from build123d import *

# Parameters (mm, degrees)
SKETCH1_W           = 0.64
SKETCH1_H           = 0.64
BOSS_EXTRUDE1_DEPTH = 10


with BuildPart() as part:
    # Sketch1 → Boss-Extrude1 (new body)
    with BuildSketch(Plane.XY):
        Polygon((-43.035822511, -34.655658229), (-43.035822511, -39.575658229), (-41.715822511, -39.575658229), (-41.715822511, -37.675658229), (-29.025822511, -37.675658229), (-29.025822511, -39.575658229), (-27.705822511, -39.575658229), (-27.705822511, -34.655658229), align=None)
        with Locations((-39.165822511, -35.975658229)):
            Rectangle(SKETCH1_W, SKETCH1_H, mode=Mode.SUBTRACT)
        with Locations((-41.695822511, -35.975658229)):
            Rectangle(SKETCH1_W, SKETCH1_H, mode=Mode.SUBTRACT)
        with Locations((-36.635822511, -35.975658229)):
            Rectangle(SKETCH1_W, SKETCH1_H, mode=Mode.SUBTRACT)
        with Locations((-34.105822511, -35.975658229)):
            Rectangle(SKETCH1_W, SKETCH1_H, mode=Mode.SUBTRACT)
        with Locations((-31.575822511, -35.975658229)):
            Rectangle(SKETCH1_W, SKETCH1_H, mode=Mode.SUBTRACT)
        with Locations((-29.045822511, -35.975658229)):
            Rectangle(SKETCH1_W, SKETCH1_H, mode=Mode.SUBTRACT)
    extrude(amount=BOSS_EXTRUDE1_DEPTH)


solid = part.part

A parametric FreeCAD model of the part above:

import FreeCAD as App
import Part
import Sketcher
from FreeCAD import Vector
Q = App.Units.Quantity

doc = App.newDocument("Part")
body = doc.addObject("PartDesign::Body", "Body")

# Sketch on XY plane
sketch1 = body.newObject("Sketcher::SketchObject", "Sketch")
sketch1.AttachmentSupport = (doc.getObject("XY_Plane"), [""])
sketch1.MapMode = "FlatFace"
sketch1.addGeometry(Part.LineSegment(Vector(-43.035823, -34.655658, 0), Vector(-43.035823, -39.575658, 0)), False)
sketch1.addGeometry(Part.LineSegment(Vector(-43.035823, -39.575658, 0), Vector(-41.715823, -39.575658, 0)), False)
sketch1.addGeometry(Part.LineSegment(Vector(-41.715823, -39.575658, 0), Vector(-41.715823, -37.675658, 0)), False)
sketch1.addGeometry(Part.LineSegment(Vector(-41.715823, -37.675658, 0), Vector(-29.025823, -37.675658, 0)), False)
sketch1.addGeometry(Part.LineSegment(Vector(-29.025823, -37.675658, 0), Vector(-29.025823, -39.575658, 0)), False)
sketch1.addGeometry(Part.LineSegment(Vector(-29.025823, -39.575658, 0), Vector(-27.705823, -39.575658, 0)), False)
sketch1.addGeometry(Part.LineSegment(Vector(-27.705823, -39.575658, 0), Vector(-27.705823, -34.655658, 0)), False)
sketch1.addGeometry(Part.LineSegment(Vector(-27.705823, -34.655658, 0), Vector(-43.035823, -34.655658, 0)), False)
sketch1.addGeometry(Part.LineSegment(Vector(-41.375823, -36.295658, 0), Vector(-42.015823, -36.295658, 0)), False)
sketch1.addGeometry(Part.LineSegment(Vector(-42.015823, -36.295658, 0), Vector(-42.015823, -35.655658, 0)), False)
sketch1.addGeometry(Part.LineSegment(Vector(-42.015823, -35.655658, 0), Vector(-41.375823, -35.655658, 0)), False)
sketch1.addGeometry(Part.LineSegment(Vector(-41.375823, -35.655658, 0), Vector(-41.375823, -36.295658, 0)), False)
sketch1.addGeometry(Part.LineSegment(Vector(-38.845823, -36.295658, 0), Vector(-39.485823, -36.295658, 0)), False)
sketch1.addGeometry(Part.LineSegment(Vector(-39.485823, -36.295658, 0), Vector(-39.485823, -35.655658, 0)), False)
sketch1.addGeometry(Part.LineSegment(Vector(-39.485823, -35.655658, 0), Vector(-38.845823, -35.655658, 0)), False)
sketch1.addGeometry(Part.LineSegment(Vector(-38.845823, -35.655658, 0), Vector(-38.845823, -36.295658, 0)), False)
sketch1.addGeometry(Part.LineSegment(Vector(-36.315823, -36.295658, 0), Vector(-36.955823, -36.295658, 0)), False)
sketch1.addGeometry(Part.LineSegment(Vector(-36.955823, -36.295658, 0), Vector(-36.955823, -35.655658, 0)), False)
sketch1.addGeometry(Part.LineSegment(Vector(-36.955823, -35.655658, 0), Vector(-36.315823, -35.655658, 0)), False)
sketch1.addGeometry(Part.LineSegment(Vector(-36.315823, -35.655658, 0), Vector(-36.315823, -36.295658, 0)), False)
sketch1.addGeometry(Part.LineSegment(Vector(-33.785823, -36.295658, 0), Vector(-34.425823, -36.295658, 0)), False)
sketch1.addGeometry(Part.LineSegment(Vector(-34.425823, -36.295658, 0), Vector(-34.425823, -35.655658, 0)), False)
sketch1.addGeometry(Part.LineSegment(Vector(-34.425823, -35.655658, 0), Vector(-33.785823, -35.655658, 0)), False)
sketch1.addGeometry(Part.LineSegment(Vector(-33.785823, -35.655658, 0), Vector(-33.785823, -36.295658, 0)), False)
sketch1.addGeometry(Part.LineSegment(Vector(-31.255823, -36.295658, 0), Vector(-31.895823, -36.295658, 0)), False)
sketch1.addGeometry(Part.LineSegment(Vector(-31.895823, -36.295658, 0), Vector(-31.895823, -35.655658, 0)), False)
sketch1.addGeometry(Part.LineSegment(Vector(-31.895823, -35.655658, 0), Vector(-31.255823, -35.655658, 0)), False)
sketch1.addGeometry(Part.LineSegment(Vector(-31.255823, -35.655658, 0), Vector(-31.255823, -36.295658, 0)), False)
sketch1.addGeometry(Part.LineSegment(Vector(-28.725823, -36.295658, 0), Vector(-29.365823, -36.295658, 0)), False)
sketch1.addGeometry(Part.LineSegment(Vector(-29.365823, -36.295658, 0), Vector(-29.365823, -35.655658, 0)), False)
sketch1.addGeometry(Part.LineSegment(Vector(-29.365823, -35.655658, 0), Vector(-28.725823, -35.655658, 0)), False)
sketch1.addGeometry(Part.LineSegment(Vector(-28.725823, -35.655658, 0), Vector(-28.725823, -36.295658, 0)), False)
sketch1.addConstraint(Sketcher.Constraint("Coincident", 0, 2, 1, 1))
sketch1.addConstraint(Sketcher.Constraint("Coincident", 1, 2, 2, 1))
sketch1.addConstraint(Sketcher.Constraint("Coincident", 2, 2, 3, 1))
sketch1.addConstraint(Sketcher.Constraint("Coincident", 3, 2, 4, 1))
sketch1.addConstraint(Sketcher.Constraint("Coincident", 4, 2, 5, 1))
sketch1.addConstraint(Sketcher.Constraint("Coincident", 5, 2, 6, 1))
sketch1.addConstraint(Sketcher.Constraint("Coincident", 6, 2, 7, 1))
sketch1.addConstraint(Sketcher.Constraint("Coincident", 7, 2, 0, 1))
sketch1.addConstraint(Sketcher.Constraint("Coincident", 8, 2, 9, 1))
sketch1.addConstraint(Sketcher.Constraint("Coincident", 9, 2, 10, 1))
sketch1.addConstraint(Sketcher.Constraint("Coincident", 10, 2, 11, 1))
sketch1.addConstraint(Sketcher.Constraint("Coincident", 11, 2, 8, 1))
sketch1.addConstraint(Sketcher.Constraint("Coincident", 12, 2, 13, 1))
sketch1.addConstraint(Sketcher.Constraint("Coincident", 13, 2, 14, 1))
sketch1.addConstraint(Sketcher.Constraint("Coincident", 14, 2, 15, 1))
sketch1.addConstraint(Sketcher.Constraint("Coincident", 15, 2, 12, 1))
sketch1.addConstraint(Sketcher.Constraint("Coincident", 16, 2, 17, 1))
sketch1.addConstraint(Sketcher.Constraint("Coincident", 17, 2, 18, 1))
sketch1.addConstraint(Sketcher.Constraint("Coincident", 18, 2, 19, 1))
sketch1.addConstraint(Sketcher.Constraint("Coincident", 19, 2, 16, 1))
sketch1.addConstraint(Sketcher.Constraint("Coincident", 20, 2, 21, 1))
sketch1.addConstraint(Sketcher.Constraint("Coincident", 21, 2, 22, 1))
sketch1.addConstraint(Sketcher.Constraint("Coincident", 22, 2, 23, 1))
sketch1.addConstraint(Sketcher.Constraint("Coincident", 23, 2, 20, 1))
sketch1.addConstraint(Sketcher.Constraint("Coincident", 24, 2, 25, 1))
sketch1.addConstraint(Sketcher.Constraint("Coincident", 25, 2, 26, 1))
sketch1.addConstraint(Sketcher.Constraint("Coincident", 26, 2, 27, 1))
sketch1.addConstraint(Sketcher.Constraint("Coincident", 27, 2, 24, 1))
sketch1.addConstraint(Sketcher.Constraint("Coincident", 28, 2, 29, 1))
sketch1.addConstraint(Sketcher.Constraint("Coincident", 29, 2, 30, 1))
sketch1.addConstraint(Sketcher.Constraint("Coincident", 30, 2, 31, 1))
sketch1.addConstraint(Sketcher.Constraint("Coincident", 31, 2, 28, 1))
sketch1.addConstraint(Sketcher.Constraint("Vertical", 0))
sketch1.addConstraint(Sketcher.Constraint("Horizontal", 1))
sketch1.addConstraint(Sketcher.Constraint("Vertical", 2))
sketch1.addConstraint(Sketcher.Constraint("Horizontal", 3))
sketch1.addConstraint(Sketcher.Constraint("Vertical", 4))
sketch1.addConstraint(Sketcher.Constraint("Horizontal", 5))
sketch1.addConstraint(Sketcher.Constraint("Vertical", 6))
sketch1.addConstraint(Sketcher.Constraint("Horizontal", 7))
sketch1.addConstraint(Sketcher.Constraint("Horizontal", 8))
sketch1.addConstraint(Sketcher.Constraint("Vertical", 9))
sketch1.addConstraint(Sketcher.Constraint("Horizontal", 10))
sketch1.addConstraint(Sketcher.Constraint("Vertical", 11))
sketch1.addConstraint(Sketcher.Constraint("Horizontal", 12))
sketch1.addConstraint(Sketcher.Constraint("Vertical", 13))
sketch1.addConstraint(Sketcher.Constraint("Horizontal", 14))
sketch1.addConstraint(Sketcher.Constraint("Vertical", 15))
sketch1.addConstraint(Sketcher.Constraint("Horizontal", 16))
sketch1.addConstraint(Sketcher.Constraint("Vertical", 17))
sketch1.addConstraint(Sketcher.Constraint("Horizontal", 18))
sketch1.addConstraint(Sketcher.Constraint("Vertical", 19))
sketch1.addConstraint(Sketcher.Constraint("Horizontal", 20))
sketch1.addConstraint(Sketcher.Constraint("Vertical", 21))
sketch1.addConstraint(Sketcher.Constraint("Horizontal", 22))
sketch1.addConstraint(Sketcher.Constraint("Vertical", 23))
sketch1.addConstraint(Sketcher.Constraint("Horizontal", 24))
sketch1.addConstraint(Sketcher.Constraint("Vertical", 25))
sketch1.addConstraint(Sketcher.Constraint("Horizontal", 26))
sketch1.addConstraint(Sketcher.Constraint("Vertical", 27))
sketch1.addConstraint(Sketcher.Constraint("Horizontal", 28))
sketch1.addConstraint(Sketcher.Constraint("Vertical", 29))
sketch1.addConstraint(Sketcher.Constraint("Horizontal", 30))
sketch1.addConstraint(Sketcher.Constraint("Vertical", 31))
sketch1.addConstraint(Sketcher.Constraint("Horizontal", 1, 2, 4, 2))
sketch1.addConstraint(Sketcher.Constraint("Horizontal", 11, 2, 12, 2))
sketch1.addConstraint(Sketcher.Constraint("Horizontal", 10, 2, 13, 2))
sketch1.addConstraint(Sketcher.Constraint("Horizontal", 15, 2, 16, 2))
sketch1.addConstraint(Sketcher.Constraint("Horizontal", 14, 2, 17, 2))
sketch1.addConstraint(Sketcher.Constraint("Horizontal", 19, 2, 20, 2))
sketch1.addConstraint(Sketcher.Constraint("Horizontal", 18, 2, 21, 2))
sketch1.addConstraint(Sketcher.Constraint("Horizontal", 23, 2, 24, 2))
sketch1.addConstraint(Sketcher.Constraint("Horizontal", 22, 2, 25, 2))
sketch1.addConstraint(Sketcher.Constraint("Horizontal", 27, 2, 28, 2))
sketch1.addConstraint(Sketcher.Constraint("Horizontal", 26, 2, 29, 2))
sketch1.addConstraint(Sketcher.Constraint("Equal", 1, 5))
sketch1.addConstraint(Sketcher.Constraint("Equal", 10, 12))
sketch1.addConstraint(Sketcher.Constraint("Equal", 14, 16))
sketch1.addConstraint(Sketcher.Constraint("Equal", 18, 20))
sketch1.addConstraint(Sketcher.Constraint("Equal", 22, 24))
sketch1.addConstraint(Sketcher.Constraint("Equal", 26, 28))
sketch1.addConstraint(Sketcher.Constraint("Equal", 30, 9))
sketch1.addConstraint(Sketcher.Constraint("DistanceY", 2, 1, 2, 2, Q("1.9 mm")))
sketch1.addConstraint(Sketcher.Constraint("DistanceY", 9, 2, 7, 2, Q("1 mm")))
sketch1.addConstraint(Sketcher.Constraint("DistanceX", 1, 1, 1, 2, Q("1.32 mm")))
sketch1.addConstraint(Sketcher.Constraint("DistanceX", 3, 1, 3, 2, Q("12.69 mm")))
sketch1.addConstraint(Sketcher.Constraint("DistanceX", 8, 2, 8, 1, Q("0.64 mm")))
sketch1.addConstraint(Sketcher.Constraint("DistanceY", 0, 2, 0, 1, Q("4.92 mm")))
sketch1.addConstraint(Sketcher.Constraint("DistanceX", 8, 2, 2, 2, Q("0.3 mm")))
sketch1.addConstraint(Sketcher.Constraint("DistanceX", 3, 2, 30, 2, Q("0.3 mm")))
sketch1.addConstraint(Sketcher.Constraint("DistanceX", 11, 2, 12, 2, Q("1.89 mm")))
sketch1.addConstraint(Sketcher.Constraint("DistanceX", 15, 2, 16, 2, Q("1.89 mm")))
sketch1.addConstraint(Sketcher.Constraint("DistanceX", 19, 2, 20, 2, Q("1.89 mm")))
sketch1.addConstraint(Sketcher.Constraint("DistanceX", 23, 2, 24, 2, Q("1.89 mm")))
sketch1.addConstraint(Sketcher.Constraint("DistanceY", 0, 2, -1, 1, Q("39.575658 mm")))
sketch1.addConstraint(Sketcher.Constraint("DistanceX", 0, 2, -1, 1, Q("43.035823 mm")))
pad1 = body.newObject("PartDesign::Pad", "Pad")
pad1.Profile = sketch1
pad1.Length = 10

doc.recompute()
